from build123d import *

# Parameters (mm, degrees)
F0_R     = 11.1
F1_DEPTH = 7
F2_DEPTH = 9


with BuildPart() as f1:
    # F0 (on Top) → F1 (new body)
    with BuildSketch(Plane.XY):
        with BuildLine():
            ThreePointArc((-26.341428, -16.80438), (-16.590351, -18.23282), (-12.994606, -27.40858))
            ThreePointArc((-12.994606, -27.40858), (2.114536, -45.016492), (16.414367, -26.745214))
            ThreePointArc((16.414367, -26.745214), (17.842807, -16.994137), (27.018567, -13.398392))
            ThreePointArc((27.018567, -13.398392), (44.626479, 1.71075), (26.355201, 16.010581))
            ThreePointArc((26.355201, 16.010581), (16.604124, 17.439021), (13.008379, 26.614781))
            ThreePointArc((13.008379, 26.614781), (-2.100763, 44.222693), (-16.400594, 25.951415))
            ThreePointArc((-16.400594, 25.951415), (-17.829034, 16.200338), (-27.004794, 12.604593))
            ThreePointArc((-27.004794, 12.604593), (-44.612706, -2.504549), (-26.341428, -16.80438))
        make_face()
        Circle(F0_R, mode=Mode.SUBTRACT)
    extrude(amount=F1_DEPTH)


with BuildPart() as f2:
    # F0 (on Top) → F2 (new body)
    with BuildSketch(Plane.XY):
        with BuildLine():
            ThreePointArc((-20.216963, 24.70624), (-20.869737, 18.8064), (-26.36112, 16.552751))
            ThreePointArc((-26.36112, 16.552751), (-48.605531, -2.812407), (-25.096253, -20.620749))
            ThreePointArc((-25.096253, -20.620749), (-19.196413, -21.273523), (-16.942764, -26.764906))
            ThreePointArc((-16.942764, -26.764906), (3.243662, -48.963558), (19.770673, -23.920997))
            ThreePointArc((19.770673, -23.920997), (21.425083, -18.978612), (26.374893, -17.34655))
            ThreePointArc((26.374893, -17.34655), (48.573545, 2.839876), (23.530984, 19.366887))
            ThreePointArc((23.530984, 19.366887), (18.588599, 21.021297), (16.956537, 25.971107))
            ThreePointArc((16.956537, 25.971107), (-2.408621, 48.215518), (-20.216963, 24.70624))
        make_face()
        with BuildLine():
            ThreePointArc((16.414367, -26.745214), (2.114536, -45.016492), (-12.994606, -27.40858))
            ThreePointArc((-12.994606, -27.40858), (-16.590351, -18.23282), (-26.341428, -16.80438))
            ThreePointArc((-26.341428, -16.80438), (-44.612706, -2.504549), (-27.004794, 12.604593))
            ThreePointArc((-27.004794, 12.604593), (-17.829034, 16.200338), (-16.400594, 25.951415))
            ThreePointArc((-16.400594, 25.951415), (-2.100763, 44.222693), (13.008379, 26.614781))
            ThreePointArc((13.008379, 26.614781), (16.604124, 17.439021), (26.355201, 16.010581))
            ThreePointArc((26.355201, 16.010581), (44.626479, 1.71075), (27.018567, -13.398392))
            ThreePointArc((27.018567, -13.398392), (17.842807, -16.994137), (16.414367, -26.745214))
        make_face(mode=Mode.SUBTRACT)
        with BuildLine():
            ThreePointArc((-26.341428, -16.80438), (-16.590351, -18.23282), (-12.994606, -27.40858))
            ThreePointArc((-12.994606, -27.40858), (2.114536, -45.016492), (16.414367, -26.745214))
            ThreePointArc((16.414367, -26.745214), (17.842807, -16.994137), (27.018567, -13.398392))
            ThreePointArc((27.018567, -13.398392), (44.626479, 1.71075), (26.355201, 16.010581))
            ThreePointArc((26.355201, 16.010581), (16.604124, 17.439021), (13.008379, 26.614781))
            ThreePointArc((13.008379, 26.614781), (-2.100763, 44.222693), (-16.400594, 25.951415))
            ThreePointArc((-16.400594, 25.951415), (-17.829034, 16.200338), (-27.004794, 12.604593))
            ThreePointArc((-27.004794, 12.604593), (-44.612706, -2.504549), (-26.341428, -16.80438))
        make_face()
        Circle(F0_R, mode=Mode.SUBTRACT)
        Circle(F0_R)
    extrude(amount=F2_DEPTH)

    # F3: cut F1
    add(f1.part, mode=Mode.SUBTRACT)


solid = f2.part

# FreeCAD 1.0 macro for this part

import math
import FreeCAD as App
import Part
import Sketcher

V = App.Vector
Q = App.Units.Quantity

doc = App.newDocument("Part")
params = doc.addObject("Spreadsheet::Sheet", "Params")
for row, (alias, value) in enumerate([
    ("sketch1_radius", "15 mm"),
    ("sketch1_diameter", "22.2 mm"),
    ("pad1_length", "7 mm"),
    ("sketch2_radius", "19 mm"),
    ("pad2_length", "9 mm"),
], start=1):
    params.set(f"A{row}", alias)
    params.set(f"B{row}", "=" + value)
    params.setAlias(f"B{row}", alias)

body = doc.addObject("PartDesign::Body", "Body")

sketch1 = body.newObject("Sketcher::SketchObject", "Sketch")
sketch1.AttachmentSupport = (doc.getObject("XY_Plane"), [""])
sketch1.MapMode = "FlatFace"
sketch1.addGeometry(Part.ArcOfCircle(Part.Circle(V(-23, -26, 0), V(0, 0, 1), 10), math.radians(-9), math.radians(112)), False)
sketch1.addGeometry(Part.ArcOfCircle(Part.Circle(V(2, -30, 0), V(0, 0, 1), 15), math.radians(170), math.radians(373)), False)
sketch1.addGeometry(Part.ArcOfCircle(Part.Circle(V(26, -23, 0), V(0, 0, 1), 10), math.radians(81), math.radians(202)), False)
sketch1.addGeometry(Part.ArcOfCircle(Part.Circle(V(30, 1, 0), V(0, 0, 1), 15), math.radians(-100), math.radians(103)), False)
sketch1.addGeometry(Part.ArcOfCircle(Part.Circle(V(23, 25, 0), V(0, 0, 1), 10), math.radians(171), math.radians(292)), False)
sketch1.addGeometry(Part.ArcOfCircle(Part.Circle(V(-2, 29, 0), V(0, 0, 1), 15), math.radians(-10), math.radians(193)), False)
sketch1.addGeometry(Part.ArcOfCircle(Part.Circle(V(-26, 22, 0), V(0, 0, 1), 10), math.radians(-99), math.radians(22)), False)
sketch1.addGeometry(Part.ArcOfCircle(Part.Circle(V(-30, -2, 0), V(0, 0, 1), 15), math.radians(80), math.radians(283)), False)
sketch1.addGeometry(Part.Circle(V(0, 0, 0), V(0, 0, 1), 11), False)
sketch1.addConstraint(Sketcher.Constraint("Coincident", 0, 1, 1, 1))
sketch1.addConstraint(Sketcher.Constraint("Coincident", 1, 2, 2, 2))
sketch1.addConstraint(Sketcher.Constraint("Coincident", 2, 1, 3, 1))
sketch1.addConstraint(Sketcher.Constraint("Coincident", 3, 2, 4, 2))
sketch1.addConstraint(Sketcher.Constraint("Coincident", 4, 1, 5, 1))
sketch1.addConstraint(Sketcher.Constraint("Coincident", 5, 2, 6, 2))
sketch1.addConstraint(Sketcher.Constraint("Coincident", 6, 1, 7, 1))
sketch1.addConstraint(Sketcher.Constraint("Coincident", 7, 2, 0, 2))
sketch1.addConstraint(Sketcher.Constraint("Coincident", 8, 3, -1, 1))
sketch1.addConstraint(Sketcher.Constraint("Equal", 0, 2))
sketch1.addConstraint(Sketcher.Constraint("Equal", 1, 3))
sketch1.addConstraint(Sketcher.Constraint("Equal", 2, 4))
sketch1.addConstraint(Sketcher.Constraint("Equal", 3, 5))
sketch1.addConstraint(Sketcher.Constraint("Equal", 4, 6))
sketch1.addConstraint(Sketcher.Constraint("Equal", 5, 7))
sketch1.addConstraint(Sketcher.Constraint("Radius", 1, Q("15 mm")))
sketch1.addConstraint(Sketcher.Constraint("Diameter", 8, Q("22.2 mm")))
sketch1.addConstraint(Sketcher.Constraint("DistanceX", -1, 1, 2, 3, Q("25.528001 mm")))
sketch1.addConstraint(Sketcher.Constraint("Radius", 0, Q("9.815555 mm")))
sketch1.addConstraint(Sketcher.Constraint("DistanceX", 5, 3, -1, 1, Q("1.762501 mm")))
sketch1.addConstraint(Sketcher.Constraint("DistanceX", -1, 1, 3, 2, Q("26.355201 mm")))
sketch1.addConstraint(Sketcher.Constraint("DistanceY", 1, 2, 3, 3, Q("28.117702 mm")))
sketch1.addConstraint(Sketcher.Constraint("DistanceX", 1, 2, 2, 1, Q("10.6042 mm")))
sketch1.addConstraint(Sketcher.Constraint("DistanceY", 3, 2, 4, 1, Q("10.6042 mm")))
sketch1.addConstraint(Sketcher.Constraint("DistanceY", 7, 3, 5, 2, Q("28.117702 mm")))
sketch1.addConstraint(Sketcher.Constraint("DistanceX", 6, 1, 5, 2, Q("10.6042 mm")))
sketch1.addConstraint(Sketcher.Constraint("DistanceY", 0, 1, 7, 2, Q("10.6042 mm")))
sketch1.addConstraint(Sketcher.Constraint("DistanceX", 7, 2, 1, 3, Q("28.117702 mm")))
sketch1.addConstraint(Sketcher.Constraint("DistanceY", 2, 3, -1, 1, Q("23.10011 mm")))
sketch1.addConstraint(Sketcher.Constraint("DistanceX", 6, 3, -1, 1, Q("25.514228 mm")))
sketch1.addConstraint(Sketcher.Constraint("DistanceY", -1, 1, 6, 3, Q("22.306311 mm")))
sketch1.addConstraint(Sketcher.Constraint("DistanceX", 7, 3, -1, 1, Q("29.61652 mm")))
sketch1.addConstraint(Sketcher.Constraint("DistanceY", 0, 1, -1, 1, Q("27.40858 mm")))
sketch1.addConstraint(Sketcher.Constraint("DistanceY", 2, 1, -1, 1, Q("13.398392 mm")))
sketch1.setExpression("Constraints[15]", "Params.sketch1_radius")
sketch1.setExpression("Constraints[16]", "Params.sketch1_diameter")
pad1 = body.newObject("PartDesign::Pad", "Pad")
pad1.Profile = sketch1
pad1.setExpression("Length", "Params.pad1_length")
body2 = doc.addObject("PartDesign::Body", "Body001")

sketch2 = body2.newObject("Sketcher::SketchObject", "Sketch001")
sketch2.AttachmentSupport = (doc.getObject("XY_Plane001"), [""])
sketch2.MapMode = "FlatFace"
sketch2.addGeometry(Part.ArcOfCircle(Part.Circle(V(-26, 22, 0), V(0, 0, 1), 6), math.radians(-98), math.radians(24)), False)
sketch2.addGeometry(Part.ArcOfCircle(Part.Circle(V(-30, -2, 0), V(0, 0, 1), 19), math.radians(80), math.radians(284)), False)
sketch2.addGeometry(Part.ArcOfCircle(Part.Circle(V(-23, -26, 0), V(0, 0, 1), 6), math.radians(-8), math.radians(114)), False)
sketch2.addGeometry(Part.ArcOfCircle(Part.Circle(V(2, -30, 0), V(0, 0, 1), 19), math.radians(170), math.radians(379)), False)
sketch2.addGeometry(Part.ArcOfCircle(Part.Circle(V(26, -23, 0), V(0, 0, 1), 6), math.radians(82), math.radians(188)), False)
sketch2.addGeometry(Part.ArcOfCircle(Part.Circle(V(30, 1, 0), V(0, 0, 1), 19), math.radians(-100), math.radians(109)), False)
sketch2.addGeometry(Part.ArcOfCircle(Part.Circle(V(23, 25, 0), V(0, 0, 1), 6), math.radians(172), math.radians(278)), False)
sketch2.addGeometry(Part.ArcOfCircle(Part.Circle(V(-2, 29, 0), V(0, 0, 1), 19), math.radians(-10), math.radians(194)), False)
sketch2.addConstraint(Sketcher.Constraint("Coincident", 0, 1, 1, 1))
sketch2.addConstraint(Sketcher.Constraint("Coincident", 1, 2, 2, 2))
sketch2.addConstraint(Sketcher.Constraint("Coincident", 2, 1, 3, 1))
sketch2.addConstraint(Sketcher.Constraint("Coincident", 3, 2, 4, 2))
sketch2.addConstraint(Sketcher.Constraint("Coincident", 4, 1, 5, 1))
sketch2.addConstraint(Sketcher.Constraint("Coincident", 5, 2, 6, 2))
sketch2.addConstraint(Sketcher.Constraint("Coincident", 6, 1, 7, 1))
sketch2.addConstraint(Sketcher.Constraint("Coincident", 7, 2, 0, 2))
sketch2.addConstraint(Sketcher.Constraint("Equal", 0, 2))
sketch2.addConstraint(Sketcher.Constraint("Equal", 1, 3))
sketch2.addConstraint(Sketcher.Constraint("Equal", 2, 4))
sketch2.addConstraint(Sketcher.Constraint("Equal", 3, 5))
sketch2.addConstraint(Sketcher.Constraint("Equal", 4, 6))
sketch2.addConstraint(Sketcher.Constraint("Equal", 5, 7))
sketch2.addConstraint(Sketcher.Constraint("Radius", 1, Q("19 mm")))
sketch2.addConstraint(Sketcher.Constraint("DistanceX", -1, 1, 4, 3, Q("25.528001 mm")))
sketch2.addConstraint(Sketcher.Constraint("Radius", 0, Q("5.815555 mm")))
sketch2.addConstraint(Sketcher.Constraint("DistanceX", 7, 3, -1, 1, Q("1.762501 mm")))
sketch2.addConstraint(Sketcher.Constraint("DistanceX", 0, 3, 3, 3, Q("27.290502 mm")))
sketch2.addConstraint(Sketcher.Constraint("DistanceY", 2, 3, 5, 3, Q("27.290502 mm")))
sketch2.addConstraint(Sketcher.Constraint("DistanceY", 1, 3, 6, 3, Q("27.290501 mm")))
sketch2.addConstraint(Sketcher.Constraint("DistanceX", 1, 3, 0, 1, Q("3.2554 mm")))
sketch2.addConstraint(Sketcher.Constraint("DistanceY", 1, 2, 0, 1, Q("37.1735 mm")))
sketch2.addConstraint(Sketcher.Constraint("DistanceY", 3, 3, 2, 1, Q("3.255401 mm")))
sketch2.addConstraint(Sketcher.Constraint("DistanceX", 3, 3, 3, 2, Q("17.9944 mm")))
sketch2.addConstraint(Sketcher.Constraint("DistanceX", 4, 1, 5, 3, Q("3.255401 mm")))
sketch2.addConstraint(Sketcher.Constraint("DistanceY", 5, 3, 5, 2, Q("17.9944 mm")))
sketch2.addConstraint(Sketcher.Constraint("DistanceY", 6, 1, 7, 3, Q("3.2554 mm")))
sketch2.addConstraint(Sketcher.Constraint("DistanceX", 7, 2, 6, 1, Q("37.1735 mm")))
sketch2.addConstraint(Sketcher.Constraint("DistanceX", 0, 3, -1, 1, Q("25.514229 mm")))
sketch2.addConstraint(Sketcher.Constraint("DistanceY", -1, 1, 0, 3, Q("22.306311 mm")))
sketch2.addConstraint(Sketcher.Constraint("DistanceX", 1, 3, -1, 1, Q("29.61652 mm")))
sketch2.setExpression("Constraints[14]", "Params.sketch2_radius")
pad2 = body2.newObject("PartDesign::Pad", "Pad001")
pad2.Profile = sketch2
pad2.setExpression("Length", "Params.pad2_length")
doc.recompute()

boolean = body2.newObject("PartDesign::Boolean", "Boolean")
boolean.Type = "Cut"
boolean.addObjects([body])

doc.recompute()
